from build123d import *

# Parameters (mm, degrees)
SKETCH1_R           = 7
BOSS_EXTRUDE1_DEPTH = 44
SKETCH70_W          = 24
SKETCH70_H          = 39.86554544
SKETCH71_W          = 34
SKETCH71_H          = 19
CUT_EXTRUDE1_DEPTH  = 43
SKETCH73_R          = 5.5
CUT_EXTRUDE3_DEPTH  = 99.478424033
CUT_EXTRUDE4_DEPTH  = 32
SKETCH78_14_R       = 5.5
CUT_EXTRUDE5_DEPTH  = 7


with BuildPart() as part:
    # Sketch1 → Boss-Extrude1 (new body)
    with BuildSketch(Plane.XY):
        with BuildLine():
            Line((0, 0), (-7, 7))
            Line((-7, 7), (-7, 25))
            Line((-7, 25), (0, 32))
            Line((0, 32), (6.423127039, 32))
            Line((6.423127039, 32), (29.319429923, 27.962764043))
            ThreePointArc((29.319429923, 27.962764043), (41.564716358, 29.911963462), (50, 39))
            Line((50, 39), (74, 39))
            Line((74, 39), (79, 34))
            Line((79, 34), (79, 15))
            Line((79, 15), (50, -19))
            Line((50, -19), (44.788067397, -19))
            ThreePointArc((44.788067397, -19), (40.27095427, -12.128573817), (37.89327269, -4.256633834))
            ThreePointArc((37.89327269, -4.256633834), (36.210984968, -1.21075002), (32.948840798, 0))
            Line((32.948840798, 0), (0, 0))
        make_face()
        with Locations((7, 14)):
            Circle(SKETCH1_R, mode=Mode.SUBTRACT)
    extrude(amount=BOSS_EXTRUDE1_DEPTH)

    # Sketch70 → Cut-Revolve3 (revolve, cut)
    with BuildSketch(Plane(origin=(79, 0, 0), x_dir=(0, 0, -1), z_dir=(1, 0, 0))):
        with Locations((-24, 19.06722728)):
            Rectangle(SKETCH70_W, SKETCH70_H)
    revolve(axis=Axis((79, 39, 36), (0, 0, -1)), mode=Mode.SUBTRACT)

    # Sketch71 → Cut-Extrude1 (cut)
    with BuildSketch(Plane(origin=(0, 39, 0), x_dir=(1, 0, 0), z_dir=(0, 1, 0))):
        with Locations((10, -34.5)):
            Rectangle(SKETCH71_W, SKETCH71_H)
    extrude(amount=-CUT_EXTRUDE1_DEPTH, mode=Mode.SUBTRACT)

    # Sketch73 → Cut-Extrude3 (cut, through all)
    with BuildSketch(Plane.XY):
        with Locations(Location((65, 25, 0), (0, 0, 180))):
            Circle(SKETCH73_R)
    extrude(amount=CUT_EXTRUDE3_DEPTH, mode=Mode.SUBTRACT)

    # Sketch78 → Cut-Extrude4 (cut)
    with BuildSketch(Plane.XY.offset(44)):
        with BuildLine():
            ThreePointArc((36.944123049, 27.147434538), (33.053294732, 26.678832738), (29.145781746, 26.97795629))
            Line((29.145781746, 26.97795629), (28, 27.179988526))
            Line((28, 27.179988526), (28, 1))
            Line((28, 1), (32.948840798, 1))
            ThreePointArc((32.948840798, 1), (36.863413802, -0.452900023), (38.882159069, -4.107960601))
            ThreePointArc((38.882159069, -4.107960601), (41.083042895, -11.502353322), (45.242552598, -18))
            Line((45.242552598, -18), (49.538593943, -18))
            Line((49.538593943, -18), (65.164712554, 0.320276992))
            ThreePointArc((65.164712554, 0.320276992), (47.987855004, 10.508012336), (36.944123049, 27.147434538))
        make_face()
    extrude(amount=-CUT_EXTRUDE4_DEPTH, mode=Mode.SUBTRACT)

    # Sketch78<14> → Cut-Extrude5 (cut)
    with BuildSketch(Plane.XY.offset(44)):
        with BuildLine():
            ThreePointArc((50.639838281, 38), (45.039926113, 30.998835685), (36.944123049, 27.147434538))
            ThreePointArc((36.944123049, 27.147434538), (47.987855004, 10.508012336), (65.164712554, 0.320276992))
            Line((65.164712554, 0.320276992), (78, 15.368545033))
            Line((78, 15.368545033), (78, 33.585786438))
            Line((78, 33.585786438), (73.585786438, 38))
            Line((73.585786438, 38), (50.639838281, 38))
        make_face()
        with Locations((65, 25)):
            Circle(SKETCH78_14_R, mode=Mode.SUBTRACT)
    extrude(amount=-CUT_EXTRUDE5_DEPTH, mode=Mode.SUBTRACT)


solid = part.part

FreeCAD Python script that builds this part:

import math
import FreeCAD as App
import Part
import Sketcher
from FreeCAD import Vector
Q = App.Units.Quantity


def add_polygon(sketch, points):
    """Adds a closed chain of lines whose ends are joined by coincident constraints."""
    first, n = sketch.GeometryCount, len(points)
    for a, b in zip(points, points[1:] + points[:1]):
        sketch.addGeometry(Part.LineSegment(App.Vector(*a, 0), App.Vector(*b, 0)), False)
    for i in range(n):
        sketch.addConstraint(Sketcher.Constraint("Coincident", first + i, 2, first + (i + 1) % n, 1))

doc = App.newDocument("Part")
body = doc.addObject("PartDesign::Body", "Body")

# Sketch on XY plane
sketch1 = body.newObject("Sketcher::SketchObject", "Sketch")
sketch1.AttachmentSupport = (doc.getObject("XY_Plane"), [""])
sketch1.MapMode = "FlatFace"
sketch1.addGeometry([
    Part.LineSegment(Vector(-7, 7, 0), Vector(0, 0, 0)),  # 0
    Part.LineSegment(Vector(0, 0, 0), Vector(32.948841, 0, 0)),  # 1
    Part.ArcOfCircle(Part.Circle(Vector(32.948841, -5, 0), Vector(0, 0, 1), 5), math.radians(8.550046), math.radians(90)),  # 2
    Part.ArcOfCircle(Part.Circle(Vector(66.205882, 0, 0), Vector(0, 0, 1), 28.630802), math.radians(-171.449954), math.radians(-138.423384)),  # 3
    Part.LineSegment(Vector(44.788067, -19, 0), Vector(50, -19, 0)),  # 4
    Part.LineSegment(Vector(50, -19, 0), Vector(79, 15, 0)),  # 5
    Part.LineSegment(Vector(79, 15, 0), Vector(79, 34, 0)),  # 6
    Part.LineSegment(Vector(79, 34, 0), Vector(74, 39, 0)),  # 7
    Part.LineSegment(Vector(74, 39, 0), Vector(50, 39, 0)),  # 8
    Part.ArcOfCircle(Part.Circle(Vector(32.618745, 46.674111, 0), Vector(0, 0, 1), 19), math.radians(-100), math.radians(-23.822251)),  # 9
    Part.LineSegment(Vector(29.31943, 27.962764, 0), Vector(6.423127, 32, 0)),  # 10
    Part.LineSegment(Vector(6.423127, 32, 0), Vector(0, 32, 0)),  # 11
    Part.LineSegment(Vector(0, 32, 0), Vector(-7, 25, 0)),  # 12
    Part.LineSegment(Vector(-7, 25, 0), Vector(-7, 7, 0)),  # 13
    Part.Circle(Vector(7, 14, 0), Vector(0, 0, 1), 7),  # 14
], False)
sketch1.addConstraint([
    Sketcher.Constraint("Coincident", 0, 2, 1, 1),
    Sketcher.Constraint("Tangent", 1, 2, 2, 2),
    Sketcher.Constraint("Tangent", 2, 1, 3, 1),
    Sketcher.Constraint("Coincident", 3, 2, 4, 1),
    Sketcher.Constraint("Coincident", 4, 2, 5, 1),
    Sketcher.Constraint("Coincident", 5, 2, 6, 1),
    Sketcher.Constraint("Coincident", 6, 2, 7, 1),
    Sketcher.Constraint("Coincident", 7, 2, 8, 1),
    Sketcher.Constraint("Coincident", 8, 2, 9, 2),
    Sketcher.Constraint("Tangent", 9, 1, 10, 1),
    Sketcher.Constraint("Coincident", 10, 2, 11, 1),
    Sketcher.Constraint("Coincident", 11, 2, 12, 1),
    Sketcher.Constraint("Coincident", 12, 2, 13, 1),
    Sketcher.Constraint("Coincident", 13, 2, 0, 1),
    Sketcher.Constraint("Horizontal", 1),
    Sketcher.Constraint("Horizontal", 4),
    Sketcher.Constraint("Vertical", 6),
    Sketcher.Constraint("Horizontal", 8),
    Sketcher.Constraint("Horizontal", 11),
    Sketcher.Constraint("Vertical", 13),
    Sketcher.Constraint("Coincident", 0, 2, -1, 1),
    Sketcher.Constraint("PointOnObject", 3, 3, -1),
    Sketcher.Constraint("PointOnObject", 11, 2, -2),
    Sketcher.Constraint("Parallel", 0, 7),
    Sketcher.Constraint("Perpendicular", 7, 12),
    Sketcher.Constraint("Vertical", 4, 2, 8, 2),
    Sketcher.Constraint("Equal", 0, 12),
    Sketcher.Constraint("Diameter", 14, Q("14 mm")),
    Sketcher.Constraint("Radius", 2, Q("5 mm")),
    Sketcher.Constraint("Radius", 9, Q("19 mm")),
    Sketcher.Constraint("DistanceX", 8, 2, 8, 1, Q("24 mm")),
    Sketcher.Constraint("DistanceY", 6, 1, 6, 2, Q("19 mm")),
    Sketcher.Constraint("DistanceY", 13, 2, 13, 1, Q("18 mm")),
    Sketcher.Constraint("Angle", 10, Q("170 deg")),
    Sketcher.Constraint("DistanceX", -1, 1, 14, 3, Q("7 mm")),
    Sketcher.Constraint("DistanceY", -1, 1, 14, 3, Q("14 mm")),
    Sketcher.Constraint("DistanceY", 3, 2, -1, 1, Q("19 mm")),
    Sketcher.Constraint("DistanceX", -1, 1, 4, 2, Q("50 mm")),
    Sketcher.Constraint("DistanceX", -1, 1, 5, 2, Q("79 mm")),
    Sketcher.Constraint("DistanceY", -1, 1, 5, 2, Q("15 mm")),
    Sketcher.Constraint("DistanceY", -1, 1, 10, 2, Q("32 mm")),
    Sketcher.Constraint("Radius", 3, Q("28.630802 mm")),
    Sketcher.Constraint("DistanceX", 1, 1, 1, 2, Q("32.948841 mm")),
    Sketcher.Constraint("DistanceX", 11, 2, 11, 1, Q("6.423127 mm")),
])
pad1 = body.newObject("PartDesign::Pad", "Pad")
pad1.Profile = sketch1
pad1.Length = 44

# Sketch on YZ plane
sketch2 = body.newObject("Sketcher::SketchObject", "Sketch001")
sketch2.AttachmentSupport = (doc.getObject("YZ_Plane"), [""])
sketch2.MapMode = "FlatFace"
sketch2.AttachmentOffset = App.Placement(Vector(0, 0, 79), App.Rotation())
add_polygon(sketch2, [(39, 36), (-0.865545, 36), (-0.865545, 12), (39, 12)])  # lines 0-3
sketch2.addGeometry(Part.LineSegment(Vector(39, 36, 0), Vector(39, 12, 0)), True)  # axis
sketch2.addConstraint([
    Sketcher.Constraint("Horizontal", 0),
    Sketcher.Constraint("Vertical", 1),
    Sketcher.Constraint("Horizontal", 2),
    Sketcher.Constraint("Vertical", 3),
    Sketcher.Constraint("Vertical", 4),
    Sketcher.Constraint("Coincident", 4, 1, 3, 2),
    Sketcher.Constraint("Horizontal", 1, 2, 4, 2),
    Sketcher.Constraint("DistanceY", 1, 2, 1, 1, Q("24 mm")),
    Sketcher.Constraint("DistanceY", -1, 1, 0, 2, Q("36 mm")),
    Sketcher.Constraint("DistanceX", -1, 1, 2, 2, Q("39 mm")),
    Sketcher.Constraint("DistanceX", 0, 2, 0, 1, Q("39.865545 mm")),
])
groove = body.newObject("PartDesign::Groove", "Groove")
groove.Profile = sketch2
groove.ReferenceAxis = (sketch2, ["Axis0"])
groove.Angle = 360

# Sketch on XZ plane
sketch3 = body.newObject("Sketcher::SketchObject", "Sketch002")
sketch3.AttachmentSupport = (doc.getObject("XZ_Plane"), [""])
sketch3.MapMode = "FlatFace"
sketch3.AttachmentOffset = App.Placement(Vector(0, 0, -39), App.Rotation())
add_polygon(sketch3, [(-7, 25), (-7, 44), (27, 44), (27, 25)])  # lines 0-3
sketch3.addConstraint([
    Sketcher.Constraint("Vertical", 0),
    Sketcher.Constraint("Horizontal", 1),
    Sketcher.Constraint("Vertical", 2),
    Sketcher.Constraint("Horizontal", 3),
    Sketcher.Constraint("DistanceX", 1, 1, 1, 2, Q("34 mm")),
    Sketcher.Constraint("DistanceY", 0, 1, 0, 2, Q("19 mm")),
    Sketcher.Constraint("DistanceX", 0, 2, -1, 1, Q("7 mm")),
    Sketcher.Constraint("DistanceY", -1, 1, 0, 2, Q("44 mm")),
])
pocket1 = body.newObject("PartDesign::Pocket", "Pocket")
pocket1.Profile = sketch3
pocket1.Length = 43
pocket1.Reversed = True

# Sketch on XY plane
sketch4 = body.newObject("Sketcher::SketchObject", "Sketch003")
sketch4.AttachmentSupport = (doc.getObject("XY_Plane"), [""])
sketch4.MapMode = "FlatFace"
sketch4.addGeometry(Part.Circle(Vector(65, 25, 0), Vector(0, 0, 1), 5.5), False)
sketch4.addConstraint([
    Sketcher.Constraint("Diameter", 0, Q("11 mm")),
    Sketcher.Constraint("DistanceX", -1, 1, 0, 3, Q("65 mm")),
    Sketcher.Constraint("DistanceY", -1, 1, 0, 3, Q("25 mm")),
])
pocket2 = body.newObject("PartDesign::Pocket", "Pocket001")
pocket2.Profile = sketch4
pocket2.Type = "ThroughAll"
pocket2.Reversed = True

# Sketch on XY plane
sketch5 = body.newObject("Sketcher::SketchObject", "Sketch004")
sketch5.AttachmentSupport = (doc.getObject("XY_Plane"), [""])
sketch5.MapMode = "FlatFace"
sketch5.AttachmentOffset = App.Placement(Vector(0, 0, 44), App.Rotation())
sketch5.addGeometry([
    Part.ArcOfCircle(Part.Circle(Vector(32.618745, 46.674111, 0), Vector(0, 0, 1), 20), math.radians(-100), math.radians(-77.510019)),  # 0
    Part.LineSegment(Vector(29.145782, 26.977956, 0), Vector(28, 27.179989, 0)),  # 1
    Part.LineSegment(Vector(28, 27.179989, 0), Vector(28, 1, 0)),  # 2
    Part.LineSegment(Vector(28, 1, 0), Vector(32.948841, 1, 0)),  # 3
    Part.ArcOfCircle(Part.Circle(Vector(32.948841, -5, 0), Vector(0, 0, 1), 6), math.radians(8.550046), math.radians(90)),  # 4
    Part.ArcOfCircle(Part.Circle(Vector(66.205882, 0, 0), Vector(0, 0, 1), 27.630802), math.radians(-171.449954), math.radians(-139.349219)),  # 5
    Part.LineSegment(Vector(45.242553, -18, 0), Vector(49.538594, -18, 0)),  # 6
    Part.LineSegment(Vector(49.538594, -18, 0), Vector(65.164713, 0.320277, 0)),  # 7
    Part.ArcOfCircle(Part.Circle(Vector(78.85758, 42.981145, 0), Vector(0, 0, 1), 44.804512), math.radians(-159.304863), math.radians(-107.795083)),  # 8
], False)
sketch5.addConstraint([
    Sketcher.Constraint("Tangent", 0, 1, 1, 1),
    Sketcher.Constraint("Coincident", 1, 2, 2, 1),
    Sketcher.Constraint("Coincident", 2, 2, 3, 1),
    Sketcher.Constraint("Tangent", 3, 2, 4, 2),
    Sketcher.Constraint("Tangent", 4, 1, 5, 1),
    Sketcher.Constraint("Coincident", 5, 2, 6, 1),
    Sketcher.Constraint("Coincident", 6, 2, 7, 1),
    Sketcher.Constraint("Coincident", 7, 2, 8, 2),
    Sketcher.Constraint("Coincident", 8, 1, 0, 2),
    Sketcher.Constraint("Vertical", 2),
    Sketcher.Constraint("Horizontal", 3),
    Sketcher.Constraint("Horizontal", 6),
    Sketcher.Constraint("PointOnObject", 5, 3, -1),
    Sketcher.Constraint("Radius", 0, Q("20 mm")),
    Sketcher.Constraint("Radius", 4, Q("6 mm")),
    Sketcher.Constraint("Angle", 1, Q("170 deg")),
    Sketcher.Constraint("DistanceY", 4, 3, -1, 1, Q("5 mm")),
    Sketcher.Constraint("DistanceX", -1, 1, 1, 2, Q("28 mm")),
    Sketcher.Constraint("DistanceY", 5, 2, -1, 1, Q("18 mm")),
    Sketcher.Constraint("Radius", 5, Q("27.630802 mm")),
    Sketcher.Constraint("Radius", 8, Q("44.804512 mm")),
    Sketcher.Constraint("DistanceX", 3, 1, 3, 2, Q("4.948841 mm")),
    Sketcher.Constraint("DistanceX", 6, 1, 6, 2, Q("4.296041 mm")),
    Sketcher.Constraint("DistanceY", 2, 2, 2, 1, Q("26.179989 mm")),
    Sketcher.Constraint("DistanceX", 5, 3, 8, 3, Q("12.651698 mm")),
    Sketcher.Constraint("DistanceX", 0, 1, 5, 3, Q("37.060101 mm")),
    Sketcher.Constraint("DistanceY", 0, 1, 8, 3, Q("16.003189 mm")),
    Sketcher.Constraint("DistanceX", 7, 2, 5, 3, Q("1.04117 mm")),
])
pocket3 = body.newObject("PartDesign::Pocket", "Pocket002")
pocket3.Profile = sketch5
pocket3.Length = 32

# Sketch on XY plane
sketch6 = body.newObject("Sketcher::SketchObject", "Sketch005")
sketch6.AttachmentSupport = (doc.getObject("XY_Plane"), [""])
sketch6.MapMode = "FlatFace"
sketch6.AttachmentOffset = App.Placement(Vector(0, 0, 44), App.Rotation())
sketch6.addGeometry([
    Part.ArcOfCircle(Part.Circle(Vector(32.618745, 46.674111, 0), Vector(0, 0, 1), 20), math.radians(-77.510019), math.radians(-25.702956)),  # 0
    Part.ArcOfCircle(Part.Circle(Vector(78.85758, 42.981145, 0), Vector(0, 0, 1), 44.804512), math.radians(-159.304863), math.radians(-107.795083)),  # 1
    Part.LineSegment(Vector(65.164713, 0.320277, 0), Vector(78, 15.368545, 0)),  # 2
    Part.LineSegment(Vector(78, 15.368545, 0), Vector(78, 33.585786, 0)),  # 3
    Part.LineSegment(Vector(78, 33.585786, 0), Vector(73.585786, 38, 0)),  # 4
    Part.LineSegment(Vector(73.585786, 38, 0), Vector(50.639838, 38, 0)),  # 5
    Part.Circle(Vector(65, 25, 0), Vector(0, 0, 1), 5.5),  # 6
], False)
sketch6.addConstraint([
    Sketcher.Constraint("Coincident", 0, 1, 1, 1),
    Sketcher.Constraint("Coincident", 1, 2, 2, 1),
    Sketcher.Constraint("Coincident", 2, 2, 3, 1),
    Sketcher.Constraint("Coincident", 3, 2, 4, 1),
    Sketcher.Constraint("Coincident", 4, 2, 5, 1),
    Sketcher.Constraint("Coincident", 5, 2, 0, 2),
    Sketcher.Constraint("Vertical", 3),
    Sketcher.Constraint("Horizontal", 5),
    Sketcher.Constraint("Diameter", 6, Q("11 mm")),
    Sketcher.Constraint("Radius", 0, Q("20 mm")),
    Sketcher.Constraint("Angle", 4, Q("135 deg")),
    Sketcher.Constraint("DistanceX", -1, 1, 6, 3, Q("65 mm")),
    Sketcher.Constraint("DistanceY", -1, 1, 6, 3, Q("25 mm")),
    Sketcher.Constraint("DistanceX", -1, 1, 2, 2, Q("78 mm")),
    Sketcher.Constraint("DistanceY", -1, 1, 4, 2, Q("38 mm")),
    Sketcher.Constraint("Radius", 1, Q("44.804512 mm")),
    Sketcher.Constraint("DistanceX", 5, 2, 5, 1, Q("22.945948 mm")),
    Sketcher.Constraint("DistanceY", 3, 1, 3, 2, Q("18.217241 mm")),
    Sketcher.Constraint("DistanceY", 2, 2, 1, 3, Q("27.6126 mm")),
    Sketcher.Constraint("Distance", 2, Q("19.778649 mm")),
    Sketcher.Constraint("Distance", 4, Q("6.242641 mm")),
    Sketcher.Constraint("DistanceY", -1, 1, 0, 3, Q("46.674111 mm")),
    Sketcher.Constraint("DistanceX", -1, 1, 1, 3, Q("78.85758 mm")),
])
pocket4 = body.newObject("PartDesign::Pocket", "Pocket003")
pocket4.Profile = sketch6
pocket4.Length = 7

doc.recompute()
